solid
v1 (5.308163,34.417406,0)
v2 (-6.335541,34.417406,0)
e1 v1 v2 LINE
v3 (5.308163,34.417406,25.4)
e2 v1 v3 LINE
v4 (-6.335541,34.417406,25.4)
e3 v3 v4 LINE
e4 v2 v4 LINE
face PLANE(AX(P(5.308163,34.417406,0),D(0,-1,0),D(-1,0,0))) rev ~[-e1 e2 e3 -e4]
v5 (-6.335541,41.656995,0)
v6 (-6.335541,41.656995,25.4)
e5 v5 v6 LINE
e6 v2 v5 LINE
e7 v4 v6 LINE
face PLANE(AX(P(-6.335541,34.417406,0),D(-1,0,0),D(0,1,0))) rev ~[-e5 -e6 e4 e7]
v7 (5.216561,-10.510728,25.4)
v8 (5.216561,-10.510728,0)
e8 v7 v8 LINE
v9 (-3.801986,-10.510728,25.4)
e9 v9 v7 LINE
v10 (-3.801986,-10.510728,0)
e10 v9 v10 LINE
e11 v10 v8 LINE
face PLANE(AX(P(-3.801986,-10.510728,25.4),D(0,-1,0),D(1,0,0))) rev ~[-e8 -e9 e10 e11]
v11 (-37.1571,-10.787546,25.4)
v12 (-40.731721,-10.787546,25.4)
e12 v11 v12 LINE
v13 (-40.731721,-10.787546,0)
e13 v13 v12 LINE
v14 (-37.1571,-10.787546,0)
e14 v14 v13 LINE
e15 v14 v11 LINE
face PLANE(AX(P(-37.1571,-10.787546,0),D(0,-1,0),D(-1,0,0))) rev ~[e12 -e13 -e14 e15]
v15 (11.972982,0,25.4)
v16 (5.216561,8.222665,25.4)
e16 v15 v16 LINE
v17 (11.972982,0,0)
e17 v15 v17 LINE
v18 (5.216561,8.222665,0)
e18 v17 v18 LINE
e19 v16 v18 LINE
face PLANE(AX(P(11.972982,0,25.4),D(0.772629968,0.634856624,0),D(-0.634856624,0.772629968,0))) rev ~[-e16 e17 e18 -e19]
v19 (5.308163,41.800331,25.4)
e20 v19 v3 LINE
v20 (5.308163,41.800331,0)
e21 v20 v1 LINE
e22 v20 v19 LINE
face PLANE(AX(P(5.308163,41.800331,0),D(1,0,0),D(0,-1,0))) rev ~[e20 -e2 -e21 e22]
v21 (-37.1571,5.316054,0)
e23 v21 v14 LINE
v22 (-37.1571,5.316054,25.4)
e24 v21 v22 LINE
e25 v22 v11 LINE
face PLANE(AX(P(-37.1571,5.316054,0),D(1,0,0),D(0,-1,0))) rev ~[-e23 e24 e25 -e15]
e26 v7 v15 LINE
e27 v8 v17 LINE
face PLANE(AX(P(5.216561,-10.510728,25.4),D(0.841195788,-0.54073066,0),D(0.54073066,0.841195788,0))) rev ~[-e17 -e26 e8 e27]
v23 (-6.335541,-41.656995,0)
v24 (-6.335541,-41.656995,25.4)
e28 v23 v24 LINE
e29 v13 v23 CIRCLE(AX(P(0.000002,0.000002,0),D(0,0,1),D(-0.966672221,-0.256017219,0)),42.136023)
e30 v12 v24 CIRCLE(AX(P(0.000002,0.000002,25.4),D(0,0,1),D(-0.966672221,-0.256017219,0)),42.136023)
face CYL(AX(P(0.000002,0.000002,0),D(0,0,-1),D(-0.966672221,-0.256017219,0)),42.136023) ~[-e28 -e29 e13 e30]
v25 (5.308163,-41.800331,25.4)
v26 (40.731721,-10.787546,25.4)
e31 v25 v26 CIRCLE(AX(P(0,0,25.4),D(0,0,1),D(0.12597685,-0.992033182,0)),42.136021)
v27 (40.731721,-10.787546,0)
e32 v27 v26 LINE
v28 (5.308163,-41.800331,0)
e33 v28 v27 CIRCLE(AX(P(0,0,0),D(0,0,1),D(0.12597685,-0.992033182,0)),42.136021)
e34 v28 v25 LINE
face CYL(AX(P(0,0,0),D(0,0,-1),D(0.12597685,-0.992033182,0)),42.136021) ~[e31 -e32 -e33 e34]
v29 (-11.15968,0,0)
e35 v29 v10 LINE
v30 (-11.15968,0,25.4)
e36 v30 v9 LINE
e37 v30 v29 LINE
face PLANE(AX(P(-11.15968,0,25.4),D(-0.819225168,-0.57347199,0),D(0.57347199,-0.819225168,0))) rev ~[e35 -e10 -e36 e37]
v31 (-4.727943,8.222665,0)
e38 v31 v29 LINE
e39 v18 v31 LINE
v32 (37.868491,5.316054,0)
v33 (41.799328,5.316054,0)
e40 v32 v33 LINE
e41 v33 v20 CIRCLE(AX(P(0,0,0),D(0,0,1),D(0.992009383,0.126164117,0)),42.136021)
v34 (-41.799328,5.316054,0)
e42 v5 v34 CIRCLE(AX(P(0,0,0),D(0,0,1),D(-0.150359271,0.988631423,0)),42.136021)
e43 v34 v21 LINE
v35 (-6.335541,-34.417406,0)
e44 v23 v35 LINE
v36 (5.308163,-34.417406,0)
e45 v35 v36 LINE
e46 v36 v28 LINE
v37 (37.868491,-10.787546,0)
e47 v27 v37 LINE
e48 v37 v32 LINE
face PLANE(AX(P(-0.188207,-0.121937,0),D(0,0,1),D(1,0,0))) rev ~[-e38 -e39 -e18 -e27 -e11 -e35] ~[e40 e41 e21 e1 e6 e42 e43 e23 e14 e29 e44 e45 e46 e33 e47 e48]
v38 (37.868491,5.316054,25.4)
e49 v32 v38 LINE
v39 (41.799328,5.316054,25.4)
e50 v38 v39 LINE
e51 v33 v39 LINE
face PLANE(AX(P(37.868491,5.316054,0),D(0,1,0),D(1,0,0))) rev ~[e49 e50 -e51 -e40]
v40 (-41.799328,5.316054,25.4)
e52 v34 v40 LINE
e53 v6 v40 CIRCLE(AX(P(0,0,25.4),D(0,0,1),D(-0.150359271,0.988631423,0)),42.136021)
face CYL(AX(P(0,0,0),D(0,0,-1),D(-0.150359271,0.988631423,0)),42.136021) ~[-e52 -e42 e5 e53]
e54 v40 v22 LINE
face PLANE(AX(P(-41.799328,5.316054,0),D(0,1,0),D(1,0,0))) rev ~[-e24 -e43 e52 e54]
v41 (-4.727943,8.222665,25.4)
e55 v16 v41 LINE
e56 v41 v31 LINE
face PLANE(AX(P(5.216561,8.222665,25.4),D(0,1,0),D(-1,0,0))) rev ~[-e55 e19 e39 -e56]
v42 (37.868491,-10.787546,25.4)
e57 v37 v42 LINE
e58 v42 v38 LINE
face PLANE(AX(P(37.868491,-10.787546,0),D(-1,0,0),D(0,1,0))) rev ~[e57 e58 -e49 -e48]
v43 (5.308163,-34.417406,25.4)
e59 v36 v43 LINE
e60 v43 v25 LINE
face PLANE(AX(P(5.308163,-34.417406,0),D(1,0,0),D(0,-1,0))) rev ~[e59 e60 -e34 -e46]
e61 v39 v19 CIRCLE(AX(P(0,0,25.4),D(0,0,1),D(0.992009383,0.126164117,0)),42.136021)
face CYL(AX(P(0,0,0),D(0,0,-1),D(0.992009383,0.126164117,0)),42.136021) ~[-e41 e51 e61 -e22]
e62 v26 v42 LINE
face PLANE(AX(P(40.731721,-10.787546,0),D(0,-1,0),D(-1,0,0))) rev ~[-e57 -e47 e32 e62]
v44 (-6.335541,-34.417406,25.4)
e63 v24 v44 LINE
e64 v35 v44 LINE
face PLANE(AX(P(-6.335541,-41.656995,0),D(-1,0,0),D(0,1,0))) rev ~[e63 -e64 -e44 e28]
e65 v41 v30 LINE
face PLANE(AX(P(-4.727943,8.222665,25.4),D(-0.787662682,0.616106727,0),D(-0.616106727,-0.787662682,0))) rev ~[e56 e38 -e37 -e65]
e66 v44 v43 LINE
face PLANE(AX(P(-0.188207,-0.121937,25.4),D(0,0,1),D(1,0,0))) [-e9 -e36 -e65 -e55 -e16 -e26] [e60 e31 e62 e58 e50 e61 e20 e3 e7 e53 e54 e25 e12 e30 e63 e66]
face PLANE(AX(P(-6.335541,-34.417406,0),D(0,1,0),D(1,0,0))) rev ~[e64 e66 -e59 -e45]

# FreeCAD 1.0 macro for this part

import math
import FreeCAD as App
import Part
import Sketcher
from FreeCAD import Vector
Q = App.Units.Quantity

doc = App.newDocument("Part")
body = doc.addObject("PartDesign::Body", "Body")

sketch1 = body.newObject("Sketcher::SketchObject", "Sketch")
sketch1.AttachmentSupport = (doc.getObject("XY_Plane"), [""])
sketch1.MapMode = "FlatFace"
sketch1.addGeometry([
    Part.LineSegment(Vector(37.868491, 5.316054, 0), Vector(41.799328, 5.316054, 0)),
    Part.ArcOfCircle(Part.Circle(Vector(0, 0, 0), Vector(0, 0, 1), 42.136021), math.radians(7.247987), math.radians(82.762829)),
    Part.LineSegment(Vector(5.308163, 41.800331, 0), Vector(5.308163, 34.417406, 0)),
    Part.LineSegment(Vector(5.308163, 34.417406, 0), Vector(-6.335541, 34.417406, 0)),
    Part.LineSegment(Vector(-6.335541, 34.417406, 0), Vector(-6.335541, 41.656995, 0)),
    Part.ArcOfCircle(Part.Circle(Vector(0, 0, 0), Vector(0, 0, 1), 42.136021), math.radians(98.647747), math.radians(172.752013)),
    Part.LineSegment(Vector(-41.799328, 5.316054, 0), Vector(-37.1571, 5.316054, 0)),
    Part.LineSegment(Vector(-37.1571, 5.316054, 0), Vector(-37.1571, -10.787546, 0)),
    Part.LineSegment(Vector(-37.1571, -10.787546, 0), Vector(-40.731721, -10.787546, 0)),
    Part.ArcOfCircle(Part.Circle(Vector(0.000002, 0.000002, 0), Vector(0, 0, 1), 42.136023), math.radians(-165.166131), math.radians(-98.64775)),
    Part.LineSegment(Vector(-6.335541, -41.656995, 0), Vector(-6.335541, -34.417406, 0)),
    Part.LineSegment(Vector(-6.335541, -34.417406, 0), Vector(5.308163, -34.417406, 0)),
    Part.LineSegment(Vector(5.308163, -34.417406, 0), Vector(5.308163, -41.800331, 0)),
    Part.ArcOfCircle(Part.Circle(Vector(0, 0, 0), Vector(0, 0, 1), 42.136021), math.radians(-82.762829), math.radians(-14.833867)),
    Part.LineSegment(Vector(40.731721, -10.787546, 0), Vector(37.868491, -10.787546, 0)),
    Part.LineSegment(Vector(37.868491, -10.787546, 0), Vector(37.868491, 5.316054, 0)),
], False)
sketch1.addConstraint([
    Sketcher.Constraint("Coincident", 0, 2, 1, 1),
    Sketcher.Constraint("Coincident", 1, 2, 2, 1),
    Sketcher.Constraint("Coincident", 2, 2, 3, 1),
    Sketcher.Constraint("Coincident", 3, 2, 4, 1),
    Sketcher.Constraint("Coincident", 4, 2, 5, 1),
    Sketcher.Constraint("Coincident", 5, 2, 6, 1),
    Sketcher.Constraint("Coincident", 6, 2, 7, 1),
    Sketcher.Constraint("Coincident", 7, 2, 8, 1),
    Sketcher.Constraint("Coincident", 8, 2, 9, 1),
    Sketcher.Constraint("Coincident", 9, 2, 10, 1),
    Sketcher.Constraint("Coincident", 10, 2, 11, 1),
    Sketcher.Constraint("Coincident", 11, 2, 12, 1),
    Sketcher.Constraint("Coincident", 12, 2, 13, 1),
    Sketcher.Constraint("Coincident", 13, 2, 14, 1),
    Sketcher.Constraint("Coincident", 14, 2, 15, 1),
    Sketcher.Constraint("Coincident", 15, 2, 0, 1),
    Sketcher.Constraint("Horizontal", 0),
    Sketcher.Constraint("Vertical", 2),
    Sketcher.Constraint("Horizontal", 3),
    Sketcher.Constraint("Vertical", 4),
    Sketcher.Constraint("Horizontal", 6),
    Sketcher.Constraint("Vertical", 7),
    Sketcher.Constraint("Horizontal", 8),
    Sketcher.Constraint("Vertical", 10),
    Sketcher.Constraint("Horizontal", 11),
    Sketcher.Constraint("Vertical", 12),
    Sketcher.Constraint("Horizontal", 14),
    Sketcher.Constraint("Vertical", 15),
    Sketcher.Constraint("Coincident", 1, 3, -1, 1),
    Sketcher.Constraint("Coincident", 5, 3, -1, 1),
    Sketcher.Constraint("Coincident", 9, 3, -1, 1),
    Sketcher.Constraint("Coincident", 13, 3, -1, 1),
    Sketcher.Constraint("Equal", 1, 5),
    Sketcher.Constraint("Equal", 5, 13),
    Sketcher.Constraint("Symmetric", 8, 2, 13, 2, -2),
    Sketcher.Constraint("Symmetric", 3, 2, 10, 2, -1),
    Sketcher.Constraint("Horizontal", 0, 2, 5, 2),
    Sketcher.Constraint("Vertical", 2, 2, 11, 2),
    Sketcher.Constraint("DistanceY", 7, 2, 7, 1, Q("0.634 in")),
    Sketcher.Constraint("Radius", 1, 42.136021),
    Sketcher.Constraint("DistanceX", 6, 1, 6, 2, 4.642228),
    Sketcher.Constraint("DistanceX", 8, 2, 8, 1, 3.574621),
    Sketcher.Constraint("DistanceX", 14, 2, 14, 1, 2.86323),
    Sketcher.Constraint("DistanceY", 4, 1, 4, 2, 7.239589),
    Sketcher.Constraint("DistanceX", 3, 2, 3, 1, 11.643704),
    Sketcher.Constraint("DistanceY", 2, 2, 2, 1, 7.382925),
])
pad1 = body.newObject("PartDesign::Pad", "Pad")
pad1.Profile = sketch1
pad1.Length = Q("1 in")

sketch2 = body.newObject("Sketcher::SketchObject", "Sketch001")
sketch2.AttachmentSupport = (doc.getObject("XY_Plane"), [""])
sketch2.MapMode = "FlatFace"
sketch2.AttachmentOffset = App.Placement(Vector(0, 0, 1 * 25.4), App.Rotation())
sketch2.addGeometry([
    Part.LineSegment(Vector(-4.727943, 8.222665, 0), Vector(-11.15968, 0, 0)),
    Part.LineSegment(Vector(-11.15968, 0, 0), Vector(-3.801986, -10.510728, 0)),
    Part.LineSegment(Vector(-3.801986, -10.510728, 0), Vector(5.216561, -10.510728, 0)),
    Part.LineSegment(Vector(5.216561, -10.510728, 0), Vector(11.972982, 0, 0)),
    Part.LineSegment(Vector(11.972982, 0, 0), Vector(5.216561, 8.222665, 0)),
    Part.LineSegment(Vector(5.216561, 8.222665, 0), Vector(-4.727943, 8.222665, 0)),
], False)
sketch2.addConstraint([
    Sketcher.Constraint("Coincident", 0, 2, 1, 1),
    Sketcher.Constraint("Coincident", 1, 2, 2, 1),
    Sketcher.Constraint("Coincident", 2, 2, 3, 1),
    Sketcher.Constraint("Coincident", 3, 2, 4, 1),
    Sketcher.Constraint("Coincident", 4, 2, 5, 1),
    Sketcher.Constraint("Coincident", 5, 2, 0, 1),
    Sketcher.Constraint("Horizontal", 2),
    Sketcher.Constraint("Horizontal", 5),
    Sketcher.Constraint("PointOnObject", 0, 2, -1),
    Sketcher.Constraint("PointOnObject", 3, 2, -1),
    Sketcher.Constraint("Vertical", 2, 2, 4, 2),
    Sketcher.Constraint("DistanceX", 2, 1, 2, 2, 9.018547),
    Sketcher.Constraint("DistanceX", 5, 2, 5, 1, 9.944504),
    Sketcher.Constraint("DistanceX", 0, 2, -1, 1, 11.15968),
    Sketcher.Constraint("DistanceX", -1, 1, 2, 2, 5.216561),
    Sketcher.Constraint("DistanceX", 2, 2, 3, 2, 6.756421),
    Sketcher.Constraint("Distance", 0, 10.439323),
    Sketcher.Constraint("Distance", 1, 12.830084),
])
pocket1 = body.newObject("PartDesign::Pocket", "Pocket")
pocket1.Profile = sketch2
pocket1.Length = Q("1 in")

doc.recompute()
